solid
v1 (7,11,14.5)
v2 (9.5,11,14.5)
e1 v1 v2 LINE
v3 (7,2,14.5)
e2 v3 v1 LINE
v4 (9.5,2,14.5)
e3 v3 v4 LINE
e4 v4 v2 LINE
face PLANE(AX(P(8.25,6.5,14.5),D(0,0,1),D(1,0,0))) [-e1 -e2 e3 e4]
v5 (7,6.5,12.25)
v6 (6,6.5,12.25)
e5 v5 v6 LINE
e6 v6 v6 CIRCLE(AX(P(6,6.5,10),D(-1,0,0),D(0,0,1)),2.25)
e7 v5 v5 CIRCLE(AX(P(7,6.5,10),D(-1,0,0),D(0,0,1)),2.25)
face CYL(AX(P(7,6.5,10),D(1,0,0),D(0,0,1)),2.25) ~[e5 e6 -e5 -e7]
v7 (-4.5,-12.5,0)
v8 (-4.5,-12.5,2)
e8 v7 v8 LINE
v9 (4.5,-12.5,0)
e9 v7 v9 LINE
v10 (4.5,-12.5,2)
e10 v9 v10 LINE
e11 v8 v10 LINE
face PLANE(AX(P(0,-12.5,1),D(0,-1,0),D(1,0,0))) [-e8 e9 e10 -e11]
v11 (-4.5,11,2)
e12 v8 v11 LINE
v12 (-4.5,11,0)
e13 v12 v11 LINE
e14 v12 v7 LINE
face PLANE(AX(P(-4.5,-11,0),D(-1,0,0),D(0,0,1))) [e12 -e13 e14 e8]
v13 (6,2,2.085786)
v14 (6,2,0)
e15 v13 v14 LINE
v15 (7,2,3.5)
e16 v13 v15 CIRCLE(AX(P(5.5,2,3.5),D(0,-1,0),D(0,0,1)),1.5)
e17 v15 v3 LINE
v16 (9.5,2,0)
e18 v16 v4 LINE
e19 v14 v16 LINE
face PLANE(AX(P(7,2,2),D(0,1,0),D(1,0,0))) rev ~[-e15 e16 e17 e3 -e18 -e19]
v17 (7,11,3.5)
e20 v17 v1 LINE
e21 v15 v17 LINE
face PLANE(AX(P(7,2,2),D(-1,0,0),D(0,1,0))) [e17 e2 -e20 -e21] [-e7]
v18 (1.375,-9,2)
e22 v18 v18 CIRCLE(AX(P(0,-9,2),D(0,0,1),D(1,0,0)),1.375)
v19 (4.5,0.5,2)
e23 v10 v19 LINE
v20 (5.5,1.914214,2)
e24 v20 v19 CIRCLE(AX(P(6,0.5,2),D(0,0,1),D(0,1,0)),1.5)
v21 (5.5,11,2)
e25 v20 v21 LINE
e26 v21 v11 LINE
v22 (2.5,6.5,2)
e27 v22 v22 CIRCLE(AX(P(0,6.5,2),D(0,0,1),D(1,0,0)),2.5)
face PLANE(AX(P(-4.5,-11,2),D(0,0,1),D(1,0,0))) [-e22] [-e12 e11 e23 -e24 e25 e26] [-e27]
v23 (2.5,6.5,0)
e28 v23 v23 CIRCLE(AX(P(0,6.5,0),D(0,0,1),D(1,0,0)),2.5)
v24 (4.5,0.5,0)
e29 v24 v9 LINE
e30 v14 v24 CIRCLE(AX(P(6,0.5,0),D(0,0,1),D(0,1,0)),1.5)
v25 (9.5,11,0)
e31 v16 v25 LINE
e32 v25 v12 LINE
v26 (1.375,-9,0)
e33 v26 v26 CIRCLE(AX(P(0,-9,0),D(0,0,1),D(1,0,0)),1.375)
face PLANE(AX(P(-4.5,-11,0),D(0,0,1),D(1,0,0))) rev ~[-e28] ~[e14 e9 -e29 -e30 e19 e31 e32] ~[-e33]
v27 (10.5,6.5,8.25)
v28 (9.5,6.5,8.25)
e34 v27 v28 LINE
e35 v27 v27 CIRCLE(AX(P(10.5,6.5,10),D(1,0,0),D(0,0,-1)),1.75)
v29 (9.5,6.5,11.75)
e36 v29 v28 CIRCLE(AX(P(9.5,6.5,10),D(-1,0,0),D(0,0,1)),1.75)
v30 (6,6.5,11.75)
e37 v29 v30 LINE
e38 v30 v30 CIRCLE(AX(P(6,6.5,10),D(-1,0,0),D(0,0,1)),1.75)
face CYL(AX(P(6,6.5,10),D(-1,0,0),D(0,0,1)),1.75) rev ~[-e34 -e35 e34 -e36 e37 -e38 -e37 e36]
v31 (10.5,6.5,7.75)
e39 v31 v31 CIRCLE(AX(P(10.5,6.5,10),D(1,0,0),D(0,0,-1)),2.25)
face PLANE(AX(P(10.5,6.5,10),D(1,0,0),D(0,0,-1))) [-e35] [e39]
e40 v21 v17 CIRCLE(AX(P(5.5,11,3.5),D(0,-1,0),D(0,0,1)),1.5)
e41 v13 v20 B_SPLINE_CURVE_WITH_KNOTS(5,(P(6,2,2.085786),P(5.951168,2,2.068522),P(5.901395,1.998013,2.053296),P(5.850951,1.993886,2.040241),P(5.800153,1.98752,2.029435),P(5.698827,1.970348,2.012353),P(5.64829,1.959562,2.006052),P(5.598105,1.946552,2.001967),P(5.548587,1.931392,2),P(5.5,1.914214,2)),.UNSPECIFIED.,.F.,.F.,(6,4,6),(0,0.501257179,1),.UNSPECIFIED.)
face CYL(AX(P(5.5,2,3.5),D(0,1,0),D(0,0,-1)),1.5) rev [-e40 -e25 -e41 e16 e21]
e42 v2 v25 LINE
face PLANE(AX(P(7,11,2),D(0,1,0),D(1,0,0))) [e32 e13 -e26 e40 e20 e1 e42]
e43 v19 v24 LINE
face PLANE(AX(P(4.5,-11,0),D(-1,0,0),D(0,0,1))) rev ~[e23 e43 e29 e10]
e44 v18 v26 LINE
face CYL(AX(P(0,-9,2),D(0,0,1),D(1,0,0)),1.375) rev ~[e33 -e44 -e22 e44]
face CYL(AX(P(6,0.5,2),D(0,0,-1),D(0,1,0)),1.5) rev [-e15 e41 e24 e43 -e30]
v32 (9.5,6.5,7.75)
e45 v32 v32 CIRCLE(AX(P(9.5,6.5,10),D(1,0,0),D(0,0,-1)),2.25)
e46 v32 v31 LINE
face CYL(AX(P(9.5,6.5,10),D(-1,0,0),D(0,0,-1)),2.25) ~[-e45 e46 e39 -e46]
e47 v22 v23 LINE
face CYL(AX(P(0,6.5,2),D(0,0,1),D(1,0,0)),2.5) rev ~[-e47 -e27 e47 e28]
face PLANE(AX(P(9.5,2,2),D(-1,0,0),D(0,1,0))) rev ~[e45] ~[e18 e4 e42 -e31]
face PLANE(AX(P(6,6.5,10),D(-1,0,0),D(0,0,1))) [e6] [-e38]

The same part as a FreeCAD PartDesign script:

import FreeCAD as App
import Part
import Sketcher
Q = App.Units.Quantity


def edges_at(feature, points):
    """Names of the edges that pass closest to the given points."""
    edges = feature.Shape.Edges
    near = lambda p: min(range(len(edges)), key=lambda i: edges[i].distToShape(Part.Vertex(*p))[0])
    return sorted({f"Edge{near(p) + 1}" for p in points})

doc = App.newDocument("Part")
body = doc.addObject("PartDesign::Body", "Body")

sketch1 = body.newObject("Sketcher::SketchObject", "Sketch")
sketch1.AttachmentSupport = (doc.getObject("XY_Plane"), [""])
sketch1.MapMode = "FlatFace"
sketch1.addGeometry([
    Part.LineSegment(App.Vector(-4.5, 11, 0), App.Vector(-4.5, -11, 0)),
    Part.LineSegment(App.Vector(-4.5, -11, 0), App.Vector(4.5, -11, 0)),
    Part.LineSegment(App.Vector(4.5, -11, 0), App.Vector(4.5, 11, 0)),
    Part.LineSegment(App.Vector(4.5, 11, 0), App.Vector(-4.5, 11, 0)),
], False)
sketch1.addConstraint([
    Sketcher.Constraint("Coincident", 0, 2, 1, 1),
    Sketcher.Constraint("Coincident", 1, 2, 2, 1),
    Sketcher.Constraint("Coincident", 2, 2, 3, 1),
    Sketcher.Constraint("Coincident", 3, 2, 0, 1),
    Sketcher.Constraint("Vertical", 0),
    Sketcher.Constraint("Horizontal", 1),
    Sketcher.Constraint("Vertical", 2),
    Sketcher.Constraint("Horizontal", 3),
    Sketcher.Constraint("Symmetric", 0, 2, 2, 2, -1, 1),
    Sketcher.Constraint("DistanceX", 1, 1, 1, 2, Q("9 mm")),
    Sketcher.Constraint("DistanceY", 0, 2, 0, 1, Q("22 mm")),
])
pad1 = body.newObject("PartDesign::Pad", "Pad")
pad1.Profile = sketch1
pad1.Length = 2

sketch2 = body.newObject("Sketcher::SketchObject", "Sketch001")
sketch2.AttachmentSupport = (doc.getObject("XY_Plane"), [""])
sketch2.MapMode = "FlatFace"
sketch2.AttachmentOffset = App.Placement(App.Vector(0, 0, 2), App.Rotation())
sketch2.addGeometry([
    Part.Circle(App.Vector(0, 6.5, 0), App.Vector(0, 0, 1), 2.5),
    Part.Circle(App.Vector(0, -9, 0), App.Vector(0, 0, 1), 1.375),
], False)
sketch2.addConstraint([
    Sketcher.Constraint("PointOnObject", 0, 3, -2),
    Sketcher.Constraint("PointOnObject", 1, 3, -2),
    Sketcher.Constraint("Diameter", 0, Q("5 mm")),
    Sketcher.Constraint("Diameter", 1, Q("2.75 mm")),
    Sketcher.Constraint("DistanceY", 1, 3, -1, 1, Q("9 mm")),
    Sketcher.Constraint("DistanceY", -1, 1, 0, 3, Q("6.5 mm")),
])
pocket1 = body.newObject("PartDesign::Pocket", "Pocket")
pocket1.Profile = sketch2
pocket1.Length = 2

sketch3 = body.newObject("Sketcher::SketchObject", "Sketch002")
sketch3.AttachmentSupport = (doc.getObject("YZ_Plane"), [""])
sketch3.MapMode = "FlatFace"
sketch3.AttachmentOffset = App.Placement(App.Vector(0, 0, 4.5), App.Rotation())
sketch3.addGeometry([
    Part.LineSegment(App.Vector(11, 2, 0), App.Vector(2, 2, 0)),
    Part.LineSegment(App.Vector(2, 2, 0), App.Vector(2, 0, 0)),
    Part.LineSegment(App.Vector(2, 0, 0), App.Vector(11, 0, 0)),
    Part.LineSegment(App.Vector(11, 0, 0), App.Vector(11, 2, 0)),
], False)
sketch3.addConstraint([
    Sketcher.Constraint("Coincident", 0, 2, 1, 1),
    Sketcher.Constraint("Coincident", 1, 2, 2, 1),
    Sketcher.Constraint("Coincident", 2, 2, 3, 1),
    Sketcher.Constraint("Coincident", 3, 2, 0, 1),
    Sketcher.Constraint("Horizontal", 0),
    Sketcher.Constraint("Vertical", 1),
    Sketcher.Constraint("Horizontal", 2),
    Sketcher.Constraint("Vertical", 3),
    Sketcher.Constraint("PointOnObject", 1, 2, -1),
    Sketcher.Constraint("DistanceX", 0, 2, 0, 1, Q("9 mm")),
    Sketcher.Constraint("DistanceY", 1, 2, 1, 1, Q("2 mm")),
    Sketcher.Constraint("DistanceX", -1, 1, 0, 2, Q("2 mm")),
])
pad2 = body.newObject("PartDesign::Pad", "Pad001")
pad2.Profile = sketch3
pad2.Length = 5

sketch4 = body.newObject("Sketcher::SketchObject", "Sketch003")
sketch4.AttachmentSupport = (doc.getObject("XY_Plane"), [""])
sketch4.MapMode = "FlatFace"
sketch4.AttachmentOffset = App.Placement(App.Vector(0, 0, 2), App.Rotation())
sketch4.addGeometry([
    Part.LineSegment(App.Vector(7, 11, 0), App.Vector(7, 2, 0)),
    Part.LineSegment(App.Vector(7, 2, 0), App.Vector(9.5, 2, 0)),
    Part.LineSegment(App.Vector(9.5, 2, 0), App.Vector(9.5, 11, 0)),
    Part.LineSegment(App.Vector(9.5, 11, 0), App.Vector(7, 11, 0)),
], False)
sketch4.addConstraint([
    Sketcher.Constraint("Coincident", 0, 2, 1, 1),
    Sketcher.Constraint("Coincident", 1, 2, 2, 1),
    Sketcher.Constraint("Coincident", 2, 2, 3, 1),
    Sketcher.Constraint("Coincident", 3, 2, 0, 1),
    Sketcher.Constraint("Vertical", 0),
    Sketcher.Constraint("Horizontal", 1),
    Sketcher.Constraint("Vertical", 2),
    Sketcher.Constraint("Horizontal", 3),
    Sketcher.Constraint("DistanceY", 0, 2, 0, 1, Q("9 mm")),
    Sketcher.Constraint("DistanceX", 1, 1, 1, 2, Q("2.5 mm")),
    Sketcher.Constraint("DistanceX", -1, 1, 0, 2, Q("7 mm")),
    Sketcher.Constraint("DistanceY", -1, 1, 0, 2, Q("2 mm")),
])
pad3 = body.newObject("PartDesign::Pad", "Pad002")
pad3.Profile = sketch4
pad3.Length = 12.5

sketch5 = body.newObject("Sketcher::SketchObject", "Sketch004")
sketch5.AttachmentSupport = (doc.getObject("YZ_Plane"), [""])
sketch5.MapMode = "FlatFace"
sketch5.AttachmentOffset = App.Placement(App.Vector(0, 0, 7), App.Rotation())
sketch5.addGeometry(Part.Circle(App.Vector(6.5, 10, 0), App.Vector(0, 0, 1), 1.75), False)
sketch5.addConstraint([
    Sketcher.Constraint("Diameter", 0, Q("3.5 mm")),
    Sketcher.Constraint("DistanceY", -1, 1, 0, 3, Q("10 mm")),
    Sketcher.Constraint("DistanceX", -1, 1, 0, 3, Q("6.5 mm")),
])
pocket2 = body.newObject("PartDesign::Pocket", "Pocket001")
pocket2.Profile = sketch5
pocket2.Length = 2.5
pocket2.Reversed = True

sketch6 = body.newObject("Sketcher::SketchObject", "Sketch005")
sketch6.AttachmentSupport = (doc.getObject("YZ_Plane"), [""])
sketch6.MapMode = "FlatFace"
sketch6.AttachmentOffset = App.Placement(App.Vector(0, 0, 9.5), App.Rotation())
sketch6.addGeometry(Part.Circle(App.Vector(6.5, 10, 0), App.Vector(0, 0, 1), 2.25), False)
sketch6.addConstraint([
    Sketcher.Constraint("Diameter", 0, Q("4.5 mm")),
    Sketcher.Constraint("DistanceY", -1, 1, 0, 3, Q("10 mm")),
    Sketcher.Constraint("DistanceX", -1, 1, 0, 3, Q("6.5 mm")),
])
pad4 = body.newObject("PartDesign::Pad", "Pad003")
pad4.Profile = sketch6
pad4.Length = 1

sketch7 = body.newObject("Sketcher::SketchObject", "Sketch006")
sketch7.AttachmentSupport = (doc.getObject("YZ_Plane"), [""])
sketch7.MapMode = "FlatFace"
sketch7.AttachmentOffset = App.Placement(App.Vector(0, 0, 10.5), App.Rotation())
sketch7.addGeometry(Part.Circle(App.Vector(6.5, 10, 0), App.Vector(0, 0, 1), 1.75), False)
sketch7.addConstraint([
    Sketcher.Constraint("Diameter", 0, Q("3.5 mm")),
    Sketcher.Constraint("DistanceY", -1, 1, 0, 3, Q("10 mm")),
    Sketcher.Constraint("DistanceX", -1, 1, 0, 3, Q("6.5 mm")),
])
pocket3 = body.newObject("PartDesign::Pocket", "Pocket002")
pocket3.Profile = sketch7
pocket3.Length = 1

sketch8 = body.newObject("Sketcher::SketchObject", "Sketch007")
sketch8.AttachmentSupport = (doc.getObject("YZ_Plane"), [""])
sketch8.MapMode = "FlatFace"
sketch8.AttachmentOffset = App.Placement(App.Vector(0, 0, 7), App.Rotation())
sketch8.addGeometry(Part.Circle(App.Vector(6.5, 10, 0), App.Vector(0, 0, 1), 2.25), False)
sketch8.addConstraint([
    Sketcher.Constraint("Diameter", 0, Q("4.5 mm")),
    Sketcher.Constraint("DistanceY", -1, 1, 0, 3, Q("10 mm")),
    Sketcher.Constraint("DistanceX", -1, 1, 0, 3, Q("6.5 mm")),
])
pad5 = body.newObject("PartDesign::Pad", "Pad004")
pad5.Profile = sketch8
pad5.Length = 1
pad5.Reversed = True

sketch9 = body.newObject("Sketcher::SketchObject", "Sketch008")
sketch9.AttachmentSupport = (doc.getObject("YZ_Plane"), [""])
sketch9.MapMode = "FlatFace"
sketch9.AttachmentOffset = App.Placement(App.Vector(0, 0, 6), App.Rotation())
sketch9.addGeometry(Part.Circle(App.Vector(6.5, 10, 0), App.Vector(0, 0, 1), 1.75), False)
sketch9.addConstraint([
    Sketcher.Constraint("Diameter", 0, Q("3.5 mm")),
    Sketcher.Constraint("DistanceY", -1, 1, 0, 3, Q("10 mm")),
    Sketcher.Constraint("DistanceX", -1, 1, 0, 3, Q("6.5 mm")),
])
pocket4 = body.newObject("PartDesign::Pocket", "Pocket003")
pocket4.Profile = sketch9
pocket4.Length = 1
pocket4.Reversed = True
doc.recompute()

fillet = body.newObject("PartDesign::Fillet", "Fillet")
fillet.Base = (pocket4, edges_at(pocket4, [(7, 6.5, 2)]))
fillet.Radius = 1.5
doc.recompute()

fillet2 = body.newObject("PartDesign::Fillet", "Fillet001")
fillet2.Base = (fillet, edges_at(fillet, [(4.5, 2, 1)]))
fillet2.Radius = 1.5

sketch10 = body.newObject("Sketcher::SketchObject", "Sketch009")
sketch10.AttachmentSupport = (doc.getObject("XZ_Plane"), [""])
sketch10.MapMode = "FlatFace"
sketch10.AttachmentOffset = App.Placement(App.Vector(0, 0, 11), App.Rotation())
sketch10.addGeometry([
    Part.LineSegment(App.Vector(-4.5, 2, 0), App.Vector(-4.5, 0, 0)),
    Part.LineSegment(App.Vector(-4.5, 0, 0), App.Vector(4.5, 0, 0)),
    Part.LineSegment(App.Vector(4.5, 0, 0), App.Vector(4.5, 2, 0)),
    Part.LineSegment(App.Vector(4.5, 2, 0), App.Vector(-4.5, 2, 0)),
], False)
sketch10.addConstraint([
    Sketcher.Constraint("Coincident", 0, 2, 1, 1),
    Sketcher.Constraint("Coincident", 1, 2, 2, 1),
    Sketcher.Constraint("Coincident", 2, 2, 3, 1),
    Sketcher.Constraint("Coincident", 3, 2, 0, 1),
    Sketcher.Constraint("Vertical", 0),
    Sketcher.Constraint("Horizontal", 1),
    Sketcher.Constraint("Vertical", 2),
    Sketcher.Constraint("Horizontal", 3),
    Sketcher.Constraint("Symmetric", 0, 2, 1, 2, -1, 1),
    Sketcher.Constraint("DistanceX", 1, 1, 1, 2, Q("9 mm")),
    Sketcher.Constraint("DistanceY", 0, 2, 0, 1, Q("2 mm")),
])
pad6 = body.newObject("PartDesign::Pad", "Pad005")
pad6.Profile = sketch10
pad6.Length = 1.5

doc.recompute()
